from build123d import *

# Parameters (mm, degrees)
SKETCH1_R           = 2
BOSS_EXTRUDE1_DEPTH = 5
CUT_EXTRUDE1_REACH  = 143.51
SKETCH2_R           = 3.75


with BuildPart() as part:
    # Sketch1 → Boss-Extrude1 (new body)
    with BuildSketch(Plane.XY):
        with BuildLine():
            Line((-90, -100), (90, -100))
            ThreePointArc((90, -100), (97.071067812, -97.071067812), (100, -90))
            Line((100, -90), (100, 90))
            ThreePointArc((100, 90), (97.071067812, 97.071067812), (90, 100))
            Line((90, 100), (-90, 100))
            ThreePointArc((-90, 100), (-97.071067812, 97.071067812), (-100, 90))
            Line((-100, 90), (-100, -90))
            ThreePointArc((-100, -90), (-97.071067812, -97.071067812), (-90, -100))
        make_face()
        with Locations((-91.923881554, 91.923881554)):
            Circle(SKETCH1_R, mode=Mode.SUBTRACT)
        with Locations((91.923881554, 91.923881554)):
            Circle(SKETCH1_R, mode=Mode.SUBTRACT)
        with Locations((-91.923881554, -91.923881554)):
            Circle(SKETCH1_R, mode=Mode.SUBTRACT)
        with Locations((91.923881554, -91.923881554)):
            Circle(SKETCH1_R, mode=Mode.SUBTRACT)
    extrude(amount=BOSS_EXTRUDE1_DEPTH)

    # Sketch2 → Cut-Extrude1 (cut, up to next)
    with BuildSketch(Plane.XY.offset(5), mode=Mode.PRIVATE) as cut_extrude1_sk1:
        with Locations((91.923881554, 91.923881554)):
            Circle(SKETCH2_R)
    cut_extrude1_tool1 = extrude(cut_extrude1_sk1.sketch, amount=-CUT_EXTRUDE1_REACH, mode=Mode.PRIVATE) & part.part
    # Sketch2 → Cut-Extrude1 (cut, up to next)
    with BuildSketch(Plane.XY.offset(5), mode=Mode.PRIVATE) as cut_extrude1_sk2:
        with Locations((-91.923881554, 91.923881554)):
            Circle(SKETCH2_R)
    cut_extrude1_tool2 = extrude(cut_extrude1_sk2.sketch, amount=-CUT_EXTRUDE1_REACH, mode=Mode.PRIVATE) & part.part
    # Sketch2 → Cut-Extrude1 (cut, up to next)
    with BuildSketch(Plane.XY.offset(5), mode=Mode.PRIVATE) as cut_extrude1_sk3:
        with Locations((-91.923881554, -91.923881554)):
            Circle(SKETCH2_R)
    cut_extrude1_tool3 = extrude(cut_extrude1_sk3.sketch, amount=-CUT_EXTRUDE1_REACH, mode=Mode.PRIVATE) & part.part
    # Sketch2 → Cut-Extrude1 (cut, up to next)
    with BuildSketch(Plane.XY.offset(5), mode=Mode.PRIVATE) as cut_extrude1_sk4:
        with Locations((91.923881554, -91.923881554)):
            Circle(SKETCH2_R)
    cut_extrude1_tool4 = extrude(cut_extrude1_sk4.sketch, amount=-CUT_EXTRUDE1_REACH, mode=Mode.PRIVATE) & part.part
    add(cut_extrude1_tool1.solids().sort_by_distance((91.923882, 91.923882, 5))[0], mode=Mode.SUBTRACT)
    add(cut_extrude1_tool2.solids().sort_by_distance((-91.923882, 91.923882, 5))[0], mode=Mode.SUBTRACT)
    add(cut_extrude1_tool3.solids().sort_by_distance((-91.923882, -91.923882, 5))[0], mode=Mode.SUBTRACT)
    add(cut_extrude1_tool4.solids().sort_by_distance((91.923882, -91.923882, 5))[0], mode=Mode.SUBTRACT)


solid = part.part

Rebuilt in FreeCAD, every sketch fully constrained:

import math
import FreeCAD as App
import Part
import Sketcher

V = App.Vector

doc = App.newDocument("Part")
body = doc.addObject("PartDesign::Body", "Body")

# Sketch on XY plane
sketch1 = body.newObject("Sketcher::SketchObject", "Sketch")
sketch1.AttachmentSupport = (doc.getObject("XY_Plane"), [""])
sketch1.MapMode = "FlatFace"
sketch1.addGeometry([
    Part.LineSegment(V(-90, -100, 0), V(90, -100, 0)),  # 0
    Part.ArcOfCircle(Part.Circle(V(90, -90, 0), V(0, 0, 1), 10), math.radians(-90), math.radians(0)),  # 1
    Part.LineSegment(V(100, -90, 0), V(100, 90, 0)),  # 2
    Part.ArcOfCircle(Part.Circle(V(90, 90, 0), V(0, 0, 1), 10), math.radians(0), math.radians(90)),  # 3
    Part.LineSegment(V(90, 100, 0), V(-90, 100, 0)),  # 4
    Part.ArcOfCircle(Part.Circle(V(-90, 90, 0), V(0, 0, 1), 10), math.radians(90), math.radians(180)),  # 5
    Part.LineSegment(V(-100, 90, 0), V(-100, -90, 0)),  # 6
    Part.ArcOfCircle(Part.Circle(V(-90, -90, 0), V(0, 0, 1), 10), math.radians(180), math.radians(270)),  # 7
    Part.Circle(V(-91.9, -91.9, 0), V(0, 0, 1), 2),  # 8
    Part.Circle(V(91.9, -91.9, 0), V(0, 0, 1), 2),  # 9
    Part.Circle(V(-91.9, 91.9, 0), V(0, 0, 1), 2),  # 10
    Part.Circle(V(91.9, 91.9, 0), V(0, 0, 1), 2),  # 11
], False)
sketch1.addConstraint([
    Sketcher.Constraint("Tangent", 0, 2, 1, 1),
    Sketcher.Constraint("Tangent", 1, 2, 2, 1),
    Sketcher.Constraint("Tangent", 2, 2, 3, 1),
    Sketcher.Constraint("Tangent", 3, 2, 4, 1),
    Sketcher.Constraint("Tangent", 4, 2, 5, 1),
    Sketcher.Constraint("Tangent", 5, 2, 6, 1),
    Sketcher.Constraint("Tangent", 6, 2, 7, 1),
    Sketcher.Constraint("Tangent", 7, 2, 0, 1),
    Sketcher.Constraint("Horizontal", 0),
    Sketcher.Constraint("Vertical", 2),
    Sketcher.Constraint("Horizontal", 4),
    Sketcher.Constraint("Vertical", 6),
    Sketcher.Constraint("Equal", 1, 3),
    Sketcher.Constraint("Equal", 3, 5),
    Sketcher.Constraint("Equal", 5, 7),
    Sketcher.Constraint("Equal", 8, 9),
    Sketcher.Constraint("Equal", 9, 10),
    Sketcher.Constraint("Equal", 10, 11),
    Sketcher.Constraint("Symmetric", 1, 3, 5, 3, -1, 1),
    Sketcher.Constraint("Symmetric", 9, 3, 10, 3, -1, 1),
    Sketcher.Constraint("Symmetric", 8, 3, 11, 3, -1, 1),
    Sketcher.Constraint("Symmetric", 8, 3, 9, 3, -2),
    Sketcher.Constraint("Equal", 4, 2),
    Sketcher.Constraint("Diameter", 8, 4.0),
    Sketcher.Constraint("Radius", 1, 10.0),
    Sketcher.Constraint("DistanceX", 0, 1, 0, 2, 180.0),
    Sketcher.Constraint("DistanceX", 8, 3, -1, 1, 91.923882),
    Sketcher.Constraint("DistanceY", 8, 3, -1, 1, 91.923882),
])
pad1 = body.newObject("PartDesign::Pad", "Pad")
pad1.Profile = sketch1
pad1.Length = 5

# Sketch on XY plane
sketch2 = body.newObject("Sketcher::SketchObject", "Sketch001")
sketch2.AttachmentSupport = (doc.getObject("XY_Plane"), [""])
sketch2.MapMode = "FlatFace"
sketch2.AttachmentOffset = App.Placement(V(0, 0, 5), App.Rotation())
sketch2.addGeometry(Part.Circle(V(91.9, 91.9, 0), V(0, 0, 1), 3.8), False)
sketch2.addConstraint([
    Sketcher.Constraint("Diameter", 0, 7.5),
    Sketcher.Constraint("DistanceX", -1, 1, 0, 3, 91.923882),
    Sketcher.Constraint("DistanceY", -1, 1, 0, 3, 91.923882),
])
pocket1 = body.newObject("PartDesign::Pocket", "Pocket")
pocket1.Profile = sketch2
pocket1.Length = 5

# Sketch on XY plane
sketch3 = body.newObject("Sketcher::SketchObject", "Sketch002")
sketch3.AttachmentSupport = (doc.getObject("XY_Plane"), [""])
sketch3.MapMode = "FlatFace"
sketch3.AttachmentOffset = App.Placement(V(0, 0, 5), App.Rotation())
sketch3.addGeometry(Part.Circle(V(-91.9, 91.9, 0), V(0, 0, 1), 3.8), False)
sketch3.addConstraint([
    Sketcher.Constraint("Diameter", 0, 7.5),
    Sketcher.Constraint("DistanceX", 0, 3, -1, 1, 91.923882),
    Sketcher.Constraint("DistanceY", -1, 1, 0, 3, 91.923882),
])
pocket2 = body.newObject("PartDesign::Pocket", "Pocket001")
pocket2.Profile = sketch3
pocket2.Length = 5

# Sketch on XY plane
sketch4 = body.newObject("Sketcher::SketchObject", "Sketch003")
sketch4.AttachmentSupport = (doc.getObject("XY_Plane"), [""])
sketch4.MapMode = "FlatFace"
sketch4.AttachmentOffset = App.Placement(V(0, 0, 5), App.Rotation())
sketch4.addGeometry(Part.Circle(V(-91.9, -91.9, 0), V(0, 0, 1), 3.8), False)
sketch4.addConstraint([
    Sketcher.Constraint("Diameter", 0, 7.5),
    Sketcher.Constraint("DistanceX", 0, 3, -1, 1, 91.923882),
    Sketcher.Constraint("DistanceY", 0, 3, -1, 1, 91.923882),
])
pocket3 = body.newObject("PartDesign::Pocket", "Pocket002")
pocket3.Profile = sketch4
pocket3.Length = 5

# Sketch on XY plane
sketch5 = body.newObject("Sketcher::SketchObject", "Sketch004")
sketch5.AttachmentSupport = (doc.getObject("XY_Plane"), [""])
sketch5.MapMode = "FlatFace"
sketch5.AttachmentOffset = App.Placement(V(0, 0, 5), App.Rotation())
sketch5.addGeometry(Part.Circle(V(91.9, -91.9, 0), V(0, 0, 1), 3.8), False)
sketch5.addConstraint([
    Sketcher.Constraint("Diameter", 0, 7.5),
    Sketcher.Constraint("DistanceX", -1, 1, 0, 3, 91.923882),
    Sketcher.Constraint("DistanceY", 0, 3, -1, 1, 91.923882),
])
pocket4 = body.newObject("PartDesign::Pocket", "Pocket003")
pocket4.Profile = sketch5
pocket4.Length = 5

doc.recompute()
